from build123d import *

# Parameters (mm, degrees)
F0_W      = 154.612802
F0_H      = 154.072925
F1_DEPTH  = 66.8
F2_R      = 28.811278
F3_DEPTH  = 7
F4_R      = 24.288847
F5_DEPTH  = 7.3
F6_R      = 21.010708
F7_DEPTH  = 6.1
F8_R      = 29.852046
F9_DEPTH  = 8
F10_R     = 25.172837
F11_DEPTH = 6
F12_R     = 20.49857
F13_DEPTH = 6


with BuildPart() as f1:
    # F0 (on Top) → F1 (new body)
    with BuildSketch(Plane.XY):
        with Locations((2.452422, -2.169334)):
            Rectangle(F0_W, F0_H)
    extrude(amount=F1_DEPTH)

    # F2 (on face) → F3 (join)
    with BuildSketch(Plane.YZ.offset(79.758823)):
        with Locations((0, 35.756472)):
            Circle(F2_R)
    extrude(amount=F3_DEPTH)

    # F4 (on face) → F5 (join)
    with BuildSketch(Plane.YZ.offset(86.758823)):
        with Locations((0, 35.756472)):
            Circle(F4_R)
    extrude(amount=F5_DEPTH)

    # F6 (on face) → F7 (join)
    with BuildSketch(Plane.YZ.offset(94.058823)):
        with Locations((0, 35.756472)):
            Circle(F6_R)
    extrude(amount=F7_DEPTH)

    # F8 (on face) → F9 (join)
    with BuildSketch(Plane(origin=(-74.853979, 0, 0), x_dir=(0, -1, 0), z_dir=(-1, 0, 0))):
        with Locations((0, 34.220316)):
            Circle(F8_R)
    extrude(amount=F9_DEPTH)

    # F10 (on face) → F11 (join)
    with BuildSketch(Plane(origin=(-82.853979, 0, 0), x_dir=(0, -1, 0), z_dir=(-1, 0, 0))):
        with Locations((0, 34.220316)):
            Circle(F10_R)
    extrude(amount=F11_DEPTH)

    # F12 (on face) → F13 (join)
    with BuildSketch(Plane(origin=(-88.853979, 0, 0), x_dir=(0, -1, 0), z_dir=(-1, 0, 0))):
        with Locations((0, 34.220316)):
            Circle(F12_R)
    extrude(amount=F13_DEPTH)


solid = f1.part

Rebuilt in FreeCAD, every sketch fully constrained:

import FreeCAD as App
import Part
import Sketcher
from FreeCAD import Vector


def add_polygon(sketch, points):
    """Adds a closed chain of lines whose ends are joined by coincident constraints."""
    first, n = sketch.GeometryCount, len(points)
    for a, b in zip(points, points[1:] + points[:1]):
        sketch.addGeometry(Part.LineSegment(App.Vector(*a, 0), App.Vector(*b, 0)), False)
    for i in range(n):
        sketch.addConstraint(Sketcher.Constraint("Coincident", first + i, 2, first + (i + 1) % n, 1))

doc = App.newDocument("Part")
body = doc.addObject("PartDesign::Body", "Body")

sketch1 = body.newObject("Sketcher::SketchObject", "Sketch")
sketch1.AttachmentSupport = (doc.getObject("XY_Plane"), [""])
sketch1.MapMode = "FlatFace"
add_polygon(sketch1, [(-75, 75), (-75, -79), (80, -79), (80, 75)])
sketch1.addConstraint(Sketcher.Constraint("Vertical", 0))
sketch1.addConstraint(Sketcher.Constraint("Horizontal", 1))
sketch1.addConstraint(Sketcher.Constraint("Vertical", 2))
sketch1.addConstraint(Sketcher.Constraint("Horizontal", 3))
sketch1.addConstraint(Sketcher.Constraint("DistanceX", 1, 1, 1, 2, 154.612802))
sketch1.addConstraint(Sketcher.Constraint("DistanceY", 0, 2, 0, 1, 154.072925))
sketch1.addConstraint(Sketcher.Constraint("DistanceX", 0, 2, -1, 1, 74.853979))
sketch1.addConstraint(Sketcher.Constraint("DistanceY", -1, 1, 2, 2, 74.867129))
pad1 = body.newObject("PartDesign::Pad", "Pad")
pad1.Profile = sketch1
pad1.Length = 66.8

sketch2 = body.newObject("Sketcher::SketchObject", "Sketch001")
sketch2.AttachmentSupport = (doc.getObject("YZ_Plane"), [""])
sketch2.MapMode = "FlatFace"
sketch2.AttachmentOffset = App.Placement(Vector(0, 0, 79.758823), App.Rotation())
sketch2.addGeometry(Part.Circle(Vector(0, 36, 0), Vector(0, 0, 1), 29), False)
sketch2.addConstraint(Sketcher.Constraint("PointOnObject", 0, 3, -2))
sketch2.addConstraint(Sketcher.Constraint("Diameter", 0, 57.622556))
sketch2.addConstraint(Sketcher.Constraint("DistanceY", -1, 1, 0, 3, 35.756472))
pad2 = body.newObject("PartDesign::Pad", "Pad001")
pad2.Profile = sketch2
pad2.Length = 7

sketch3 = body.newObject("Sketcher::SketchObject", "Sketch002")
sketch3.AttachmentSupport = (doc.getObject("YZ_Plane"), [""])
sketch3.MapMode = "FlatFace"
sketch3.AttachmentOffset = App.Placement(Vector(0, 0, 86.758823), App.Rotation())
sketch3.addGeometry(Part.Circle(Vector(0, 36, 0), Vector(0, 0, 1), 24), False)
sketch3.addConstraint(Sketcher.Constraint("PointOnObject", 0, 3, -2))
sketch3.addConstraint(Sketcher.Constraint("Diameter", 0, 48.577694))
sketch3.addConstraint(Sketcher.Constraint("DistanceY", -1, 1, 0, 3, 35.756472))
pad3 = body.newObject("PartDesign::Pad", "Pad002")
pad3.Profile = sketch3
pad3.Length = 7.3

sketch4 = body.newObject("Sketcher::SketchObject", "Sketch003")
sketch4.AttachmentSupport = (doc.getObject("YZ_Plane"), [""])
sketch4.MapMode = "FlatFace"
sketch4.AttachmentOffset = App.Placement(Vector(0, 0, 94.058823), App.Rotation())
sketch4.addGeometry(Part.Circle(Vector(0, 36, 0), Vector(0, 0, 1), 21), False)
sketch4.addConstraint(Sketcher.Constraint("PointOnObject", 0, 3, -2))
sketch4.addConstraint(Sketcher.Constraint("Diameter", 0, 42.021416))
sketch4.addConstraint(Sketcher.Constraint("DistanceY", -1, 1, 0, 3, 35.756472))
pad4 = body.newObject("PartDesign::Pad", "Pad003")
pad4.Profile = sketch4
pad4.Length = 6.1

sketch5 = body.newObject("Sketcher::SketchObject", "Sketch004")
sketch5.AttachmentSupport = (doc.getObject("YZ_Plane"), [""])
sketch5.MapMode = "FlatFace"
sketch5.AttachmentOffset = App.Placement(Vector(0, 0, -74.853979), App.Rotation())
sketch5.addGeometry(Part.Circle(Vector(0, 34, 0), Vector(0, 0, 1), 30), False)
sketch5.addConstraint(Sketcher.Constraint("PointOnObject", 0, 3, -2))
sketch5.addConstraint(Sketcher.Constraint("Diameter", 0, 59.704092))
sketch5.addConstraint(Sketcher.Constraint("DistanceY", -1, 1, 0, 3, 34.220316))
pad5 = body.newObject("PartDesign::Pad", "Pad004")
pad5.Profile = sketch5
pad5.Length = 8
pad5.Reversed = True

sketch6 = body.newObject("Sketcher::SketchObject", "Sketch005")
sketch6.AttachmentSupport = (doc.getObject("YZ_Plane"), [""])
sketch6.MapMode = "FlatFace"
sketch6.AttachmentOffset = App.Placement(Vector(0, 0, -82.853979), App.Rotation())
sketch6.addGeometry(Part.Circle(Vector(0, 34, 0), Vector(0, 0, 1), 25), False)
sketch6.addConstraint(Sketcher.Constraint("PointOnObject", 0, 3, -2))
sketch6.addConstraint(Sketcher.Constraint("Diameter", 0, 50.345674))
sketch6.addConstraint(Sketcher.Constraint("DistanceY", -1, 1, 0, 3, 34.220316))
pad6 = body.newObject("PartDesign::Pad", "Pad005")
pad6.Profile = sketch6
pad6.Length = 6
pad6.Reversed = True

sketch7 = body.newObject("Sketcher::SketchObject", "Sketch006")
sketch7.AttachmentSupport = (doc.getObject("YZ_Plane"), [""])
sketch7.MapMode = "FlatFace"
sketch7.AttachmentOffset = App.Placement(Vector(0, 0, -88.853979), App.Rotation())
sketch7.addGeometry(Part.Circle(Vector(0, 34, 0), Vector(0, 0, 1), 20), False)
sketch7.addConstraint(Sketcher.Constraint("PointOnObject", 0, 3, -2))
sketch7.addConstraint(Sketcher.Constraint("Diameter", 0, 40.99714))
sketch7.addConstraint(Sketcher.Constraint("DistanceY", -1, 1, 0, 3, 34.220316))
pad7 = body.newObject("PartDesign::Pad", "Pad006")
pad7.Profile = sketch7
pad7.Length = 6
pad7.Reversed = True

doc.recompute()
